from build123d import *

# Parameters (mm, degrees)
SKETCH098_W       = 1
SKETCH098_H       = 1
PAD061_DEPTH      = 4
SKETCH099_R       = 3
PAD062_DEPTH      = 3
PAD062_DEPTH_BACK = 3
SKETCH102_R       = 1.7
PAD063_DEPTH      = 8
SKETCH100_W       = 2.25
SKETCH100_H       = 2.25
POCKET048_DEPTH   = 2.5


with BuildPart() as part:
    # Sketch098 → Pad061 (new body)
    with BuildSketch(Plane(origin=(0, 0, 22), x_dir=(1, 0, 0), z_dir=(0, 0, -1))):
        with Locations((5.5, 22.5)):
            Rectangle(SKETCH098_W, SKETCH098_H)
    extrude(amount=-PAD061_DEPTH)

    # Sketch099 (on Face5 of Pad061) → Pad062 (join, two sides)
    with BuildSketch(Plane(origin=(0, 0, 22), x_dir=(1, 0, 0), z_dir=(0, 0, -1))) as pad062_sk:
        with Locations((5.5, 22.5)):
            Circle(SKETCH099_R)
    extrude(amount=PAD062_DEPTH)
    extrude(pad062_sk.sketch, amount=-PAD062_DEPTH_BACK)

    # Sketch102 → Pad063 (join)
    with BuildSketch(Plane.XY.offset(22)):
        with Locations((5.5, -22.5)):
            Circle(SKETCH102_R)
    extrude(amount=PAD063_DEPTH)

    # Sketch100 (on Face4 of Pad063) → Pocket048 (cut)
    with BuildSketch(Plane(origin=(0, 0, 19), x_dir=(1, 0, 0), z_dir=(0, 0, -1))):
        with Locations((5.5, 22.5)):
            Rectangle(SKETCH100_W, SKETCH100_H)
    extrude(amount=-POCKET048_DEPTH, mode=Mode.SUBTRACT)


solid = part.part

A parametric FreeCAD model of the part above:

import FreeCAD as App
import Part
import Sketcher
from FreeCAD import Vector
Q = App.Units.Quantity

doc = App.newDocument("Part")
body = doc.addObject("PartDesign::Body", "Body")

# Sketch on XY plane
sketch1 = body.newObject("Sketcher::SketchObject", "Sketch")
sketch1.AttachmentSupport = (doc.getObject("XY_Plane"), [""])
sketch1.MapMode = "FlatFace"
sketch1.AttachmentOffset = App.Placement(Vector(0, 0, 22), App.Rotation())
sketch1.addGeometry([
    Part.LineSegment(Vector(5, -23, 0), Vector(5, -22, 0)),
    Part.LineSegment(Vector(5, -22, 0), Vector(6, -22, 0)),
    Part.LineSegment(Vector(6, -22, 0), Vector(6, -23, 0)),
    Part.LineSegment(Vector(6, -23, 0), Vector(5, -23, 0)),
], False)
sketch1.addConstraint([
    Sketcher.Constraint("Coincident", 0, 2, 1, 1),
    Sketcher.Constraint("Coincident", 1, 2, 2, 1),
    Sketcher.Constraint("Coincident", 2, 2, 3, 1),
    Sketcher.Constraint("Coincident", 3, 2, 0, 1),
    Sketcher.Constraint("Vertical", 0),
    Sketcher.Constraint("Horizontal", 1),
    Sketcher.Constraint("Vertical", 2),
    Sketcher.Constraint("Horizontal", 3),
    Sketcher.Constraint("Equal", 3, 0),
    Sketcher.Constraint("DistanceX", 1, 1, 1, 2, Q("1 mm")),
    Sketcher.Constraint("DistanceX", -1, 1, 0, 2, Q("5 mm")),
    Sketcher.Constraint("DistanceY", 0, 2, -1, 1, Q("22 mm")),
])
pad1 = body.newObject("PartDesign::Pad", "Pad")
pad1.Profile = sketch1
pad1.Length = 4

# Sketch on XY plane
sketch2 = body.newObject("Sketcher::SketchObject", "Sketch001")
sketch2.AttachmentSupport = (doc.getObject("XY_Plane"), [""])
sketch2.MapMode = "FlatFace"
sketch2.AttachmentOffset = App.Placement(Vector(0, 0, 22), App.Rotation())
sketch2.addGeometry(Part.Circle(Vector(5.5, -22.5, 0), Vector(0, 0, 1), 3), False)
sketch2.addConstraint([
    Sketcher.Constraint("Diameter", 0, Q("6 mm")),
    Sketcher.Constraint("DistanceX", -1, 1, 0, 3, Q("5.5 mm")),
    Sketcher.Constraint("DistanceY", 0, 3, -1, 1, Q("22.5 mm")),
])
pad2 = body.newObject("PartDesign::Pad", "Pad001")
pad2.Profile = sketch2
pad2.Type = "TwoLengths"
pad2.Length = 3
pad2.Length2 = 3
pad2.Reversed = True

# Sketch on XY plane
sketch3 = body.newObject("Sketcher::SketchObject", "Sketch002")
sketch3.AttachmentSupport = (doc.getObject("XY_Plane"), [""])
sketch3.MapMode = "FlatFace"
sketch3.AttachmentOffset = App.Placement(Vector(0, 0, 22), App.Rotation())
sketch3.addGeometry(Part.Circle(Vector(5.5, -22.5, 0), Vector(0, 0, 1), 1.7), False)
sketch3.addConstraint([
    Sketcher.Constraint("Diameter", 0, Q("3.4 mm")),
    Sketcher.Constraint("DistanceX", -1, 1, 0, 3, Q("5.5 mm")),
    Sketcher.Constraint("DistanceY", 0, 3, -1, 1, Q("22.5 mm")),
])
pad3 = body.newObject("PartDesign::Pad", "Pad002")
pad3.Profile = sketch3
pad3.Length = 8

# Sketch on XY plane
sketch4 = body.newObject("Sketcher::SketchObject", "Sketch003")
sketch4.AttachmentSupport = (doc.getObject("XY_Plane"), [""])
sketch4.MapMode = "FlatFace"
sketch4.AttachmentOffset = App.Placement(Vector(0, 0, 19), App.Rotation())
sketch4.addGeometry([
    Part.LineSegment(Vector(4.4, -23.6, 0), Vector(4.4, -21.4, 0)),
    Part.LineSegment(Vector(4.4, -21.4, 0), Vector(6.6, -21.4, 0)),
    Part.LineSegment(Vector(6.6, -21.4, 0), Vector(6.6, -23.6, 0)),
    Part.LineSegment(Vector(6.6, -23.6, 0), Vector(4.4, -23.6, 0)),
], False)
sketch4.addConstraint([
    Sketcher.Constraint("Coincident", 0, 2, 1, 1),
    Sketcher.Constraint("Coincident", 1, 2, 2, 1),
    Sketcher.Constraint("Coincident", 2, 2, 3, 1),
    Sketcher.Constraint("Coincident", 3, 2, 0, 1),
    Sketcher.Constraint("Vertical", 0),
    Sketcher.Constraint("Horizontal", 1),
    Sketcher.Constraint("Vertical", 2),
    Sketcher.Constraint("Horizontal", 3),
    Sketcher.Constraint("Equal", 3, 0),
    Sketcher.Constraint("DistanceX", 1, 1, 1, 2, Q("2.25 mm")),
    Sketcher.Constraint("DistanceX", -1, 1, 0, 2, Q("4.375 mm")),
    Sketcher.Constraint("DistanceY", 0, 2, -1, 1, Q("21.375 mm")),
])
pocket1 = body.newObject("PartDesign::Pocket", "Pocket")
pocket1.Profile = sketch4
pocket1.Length = 2.5
pocket1.Reversed = True

doc.recompute()
